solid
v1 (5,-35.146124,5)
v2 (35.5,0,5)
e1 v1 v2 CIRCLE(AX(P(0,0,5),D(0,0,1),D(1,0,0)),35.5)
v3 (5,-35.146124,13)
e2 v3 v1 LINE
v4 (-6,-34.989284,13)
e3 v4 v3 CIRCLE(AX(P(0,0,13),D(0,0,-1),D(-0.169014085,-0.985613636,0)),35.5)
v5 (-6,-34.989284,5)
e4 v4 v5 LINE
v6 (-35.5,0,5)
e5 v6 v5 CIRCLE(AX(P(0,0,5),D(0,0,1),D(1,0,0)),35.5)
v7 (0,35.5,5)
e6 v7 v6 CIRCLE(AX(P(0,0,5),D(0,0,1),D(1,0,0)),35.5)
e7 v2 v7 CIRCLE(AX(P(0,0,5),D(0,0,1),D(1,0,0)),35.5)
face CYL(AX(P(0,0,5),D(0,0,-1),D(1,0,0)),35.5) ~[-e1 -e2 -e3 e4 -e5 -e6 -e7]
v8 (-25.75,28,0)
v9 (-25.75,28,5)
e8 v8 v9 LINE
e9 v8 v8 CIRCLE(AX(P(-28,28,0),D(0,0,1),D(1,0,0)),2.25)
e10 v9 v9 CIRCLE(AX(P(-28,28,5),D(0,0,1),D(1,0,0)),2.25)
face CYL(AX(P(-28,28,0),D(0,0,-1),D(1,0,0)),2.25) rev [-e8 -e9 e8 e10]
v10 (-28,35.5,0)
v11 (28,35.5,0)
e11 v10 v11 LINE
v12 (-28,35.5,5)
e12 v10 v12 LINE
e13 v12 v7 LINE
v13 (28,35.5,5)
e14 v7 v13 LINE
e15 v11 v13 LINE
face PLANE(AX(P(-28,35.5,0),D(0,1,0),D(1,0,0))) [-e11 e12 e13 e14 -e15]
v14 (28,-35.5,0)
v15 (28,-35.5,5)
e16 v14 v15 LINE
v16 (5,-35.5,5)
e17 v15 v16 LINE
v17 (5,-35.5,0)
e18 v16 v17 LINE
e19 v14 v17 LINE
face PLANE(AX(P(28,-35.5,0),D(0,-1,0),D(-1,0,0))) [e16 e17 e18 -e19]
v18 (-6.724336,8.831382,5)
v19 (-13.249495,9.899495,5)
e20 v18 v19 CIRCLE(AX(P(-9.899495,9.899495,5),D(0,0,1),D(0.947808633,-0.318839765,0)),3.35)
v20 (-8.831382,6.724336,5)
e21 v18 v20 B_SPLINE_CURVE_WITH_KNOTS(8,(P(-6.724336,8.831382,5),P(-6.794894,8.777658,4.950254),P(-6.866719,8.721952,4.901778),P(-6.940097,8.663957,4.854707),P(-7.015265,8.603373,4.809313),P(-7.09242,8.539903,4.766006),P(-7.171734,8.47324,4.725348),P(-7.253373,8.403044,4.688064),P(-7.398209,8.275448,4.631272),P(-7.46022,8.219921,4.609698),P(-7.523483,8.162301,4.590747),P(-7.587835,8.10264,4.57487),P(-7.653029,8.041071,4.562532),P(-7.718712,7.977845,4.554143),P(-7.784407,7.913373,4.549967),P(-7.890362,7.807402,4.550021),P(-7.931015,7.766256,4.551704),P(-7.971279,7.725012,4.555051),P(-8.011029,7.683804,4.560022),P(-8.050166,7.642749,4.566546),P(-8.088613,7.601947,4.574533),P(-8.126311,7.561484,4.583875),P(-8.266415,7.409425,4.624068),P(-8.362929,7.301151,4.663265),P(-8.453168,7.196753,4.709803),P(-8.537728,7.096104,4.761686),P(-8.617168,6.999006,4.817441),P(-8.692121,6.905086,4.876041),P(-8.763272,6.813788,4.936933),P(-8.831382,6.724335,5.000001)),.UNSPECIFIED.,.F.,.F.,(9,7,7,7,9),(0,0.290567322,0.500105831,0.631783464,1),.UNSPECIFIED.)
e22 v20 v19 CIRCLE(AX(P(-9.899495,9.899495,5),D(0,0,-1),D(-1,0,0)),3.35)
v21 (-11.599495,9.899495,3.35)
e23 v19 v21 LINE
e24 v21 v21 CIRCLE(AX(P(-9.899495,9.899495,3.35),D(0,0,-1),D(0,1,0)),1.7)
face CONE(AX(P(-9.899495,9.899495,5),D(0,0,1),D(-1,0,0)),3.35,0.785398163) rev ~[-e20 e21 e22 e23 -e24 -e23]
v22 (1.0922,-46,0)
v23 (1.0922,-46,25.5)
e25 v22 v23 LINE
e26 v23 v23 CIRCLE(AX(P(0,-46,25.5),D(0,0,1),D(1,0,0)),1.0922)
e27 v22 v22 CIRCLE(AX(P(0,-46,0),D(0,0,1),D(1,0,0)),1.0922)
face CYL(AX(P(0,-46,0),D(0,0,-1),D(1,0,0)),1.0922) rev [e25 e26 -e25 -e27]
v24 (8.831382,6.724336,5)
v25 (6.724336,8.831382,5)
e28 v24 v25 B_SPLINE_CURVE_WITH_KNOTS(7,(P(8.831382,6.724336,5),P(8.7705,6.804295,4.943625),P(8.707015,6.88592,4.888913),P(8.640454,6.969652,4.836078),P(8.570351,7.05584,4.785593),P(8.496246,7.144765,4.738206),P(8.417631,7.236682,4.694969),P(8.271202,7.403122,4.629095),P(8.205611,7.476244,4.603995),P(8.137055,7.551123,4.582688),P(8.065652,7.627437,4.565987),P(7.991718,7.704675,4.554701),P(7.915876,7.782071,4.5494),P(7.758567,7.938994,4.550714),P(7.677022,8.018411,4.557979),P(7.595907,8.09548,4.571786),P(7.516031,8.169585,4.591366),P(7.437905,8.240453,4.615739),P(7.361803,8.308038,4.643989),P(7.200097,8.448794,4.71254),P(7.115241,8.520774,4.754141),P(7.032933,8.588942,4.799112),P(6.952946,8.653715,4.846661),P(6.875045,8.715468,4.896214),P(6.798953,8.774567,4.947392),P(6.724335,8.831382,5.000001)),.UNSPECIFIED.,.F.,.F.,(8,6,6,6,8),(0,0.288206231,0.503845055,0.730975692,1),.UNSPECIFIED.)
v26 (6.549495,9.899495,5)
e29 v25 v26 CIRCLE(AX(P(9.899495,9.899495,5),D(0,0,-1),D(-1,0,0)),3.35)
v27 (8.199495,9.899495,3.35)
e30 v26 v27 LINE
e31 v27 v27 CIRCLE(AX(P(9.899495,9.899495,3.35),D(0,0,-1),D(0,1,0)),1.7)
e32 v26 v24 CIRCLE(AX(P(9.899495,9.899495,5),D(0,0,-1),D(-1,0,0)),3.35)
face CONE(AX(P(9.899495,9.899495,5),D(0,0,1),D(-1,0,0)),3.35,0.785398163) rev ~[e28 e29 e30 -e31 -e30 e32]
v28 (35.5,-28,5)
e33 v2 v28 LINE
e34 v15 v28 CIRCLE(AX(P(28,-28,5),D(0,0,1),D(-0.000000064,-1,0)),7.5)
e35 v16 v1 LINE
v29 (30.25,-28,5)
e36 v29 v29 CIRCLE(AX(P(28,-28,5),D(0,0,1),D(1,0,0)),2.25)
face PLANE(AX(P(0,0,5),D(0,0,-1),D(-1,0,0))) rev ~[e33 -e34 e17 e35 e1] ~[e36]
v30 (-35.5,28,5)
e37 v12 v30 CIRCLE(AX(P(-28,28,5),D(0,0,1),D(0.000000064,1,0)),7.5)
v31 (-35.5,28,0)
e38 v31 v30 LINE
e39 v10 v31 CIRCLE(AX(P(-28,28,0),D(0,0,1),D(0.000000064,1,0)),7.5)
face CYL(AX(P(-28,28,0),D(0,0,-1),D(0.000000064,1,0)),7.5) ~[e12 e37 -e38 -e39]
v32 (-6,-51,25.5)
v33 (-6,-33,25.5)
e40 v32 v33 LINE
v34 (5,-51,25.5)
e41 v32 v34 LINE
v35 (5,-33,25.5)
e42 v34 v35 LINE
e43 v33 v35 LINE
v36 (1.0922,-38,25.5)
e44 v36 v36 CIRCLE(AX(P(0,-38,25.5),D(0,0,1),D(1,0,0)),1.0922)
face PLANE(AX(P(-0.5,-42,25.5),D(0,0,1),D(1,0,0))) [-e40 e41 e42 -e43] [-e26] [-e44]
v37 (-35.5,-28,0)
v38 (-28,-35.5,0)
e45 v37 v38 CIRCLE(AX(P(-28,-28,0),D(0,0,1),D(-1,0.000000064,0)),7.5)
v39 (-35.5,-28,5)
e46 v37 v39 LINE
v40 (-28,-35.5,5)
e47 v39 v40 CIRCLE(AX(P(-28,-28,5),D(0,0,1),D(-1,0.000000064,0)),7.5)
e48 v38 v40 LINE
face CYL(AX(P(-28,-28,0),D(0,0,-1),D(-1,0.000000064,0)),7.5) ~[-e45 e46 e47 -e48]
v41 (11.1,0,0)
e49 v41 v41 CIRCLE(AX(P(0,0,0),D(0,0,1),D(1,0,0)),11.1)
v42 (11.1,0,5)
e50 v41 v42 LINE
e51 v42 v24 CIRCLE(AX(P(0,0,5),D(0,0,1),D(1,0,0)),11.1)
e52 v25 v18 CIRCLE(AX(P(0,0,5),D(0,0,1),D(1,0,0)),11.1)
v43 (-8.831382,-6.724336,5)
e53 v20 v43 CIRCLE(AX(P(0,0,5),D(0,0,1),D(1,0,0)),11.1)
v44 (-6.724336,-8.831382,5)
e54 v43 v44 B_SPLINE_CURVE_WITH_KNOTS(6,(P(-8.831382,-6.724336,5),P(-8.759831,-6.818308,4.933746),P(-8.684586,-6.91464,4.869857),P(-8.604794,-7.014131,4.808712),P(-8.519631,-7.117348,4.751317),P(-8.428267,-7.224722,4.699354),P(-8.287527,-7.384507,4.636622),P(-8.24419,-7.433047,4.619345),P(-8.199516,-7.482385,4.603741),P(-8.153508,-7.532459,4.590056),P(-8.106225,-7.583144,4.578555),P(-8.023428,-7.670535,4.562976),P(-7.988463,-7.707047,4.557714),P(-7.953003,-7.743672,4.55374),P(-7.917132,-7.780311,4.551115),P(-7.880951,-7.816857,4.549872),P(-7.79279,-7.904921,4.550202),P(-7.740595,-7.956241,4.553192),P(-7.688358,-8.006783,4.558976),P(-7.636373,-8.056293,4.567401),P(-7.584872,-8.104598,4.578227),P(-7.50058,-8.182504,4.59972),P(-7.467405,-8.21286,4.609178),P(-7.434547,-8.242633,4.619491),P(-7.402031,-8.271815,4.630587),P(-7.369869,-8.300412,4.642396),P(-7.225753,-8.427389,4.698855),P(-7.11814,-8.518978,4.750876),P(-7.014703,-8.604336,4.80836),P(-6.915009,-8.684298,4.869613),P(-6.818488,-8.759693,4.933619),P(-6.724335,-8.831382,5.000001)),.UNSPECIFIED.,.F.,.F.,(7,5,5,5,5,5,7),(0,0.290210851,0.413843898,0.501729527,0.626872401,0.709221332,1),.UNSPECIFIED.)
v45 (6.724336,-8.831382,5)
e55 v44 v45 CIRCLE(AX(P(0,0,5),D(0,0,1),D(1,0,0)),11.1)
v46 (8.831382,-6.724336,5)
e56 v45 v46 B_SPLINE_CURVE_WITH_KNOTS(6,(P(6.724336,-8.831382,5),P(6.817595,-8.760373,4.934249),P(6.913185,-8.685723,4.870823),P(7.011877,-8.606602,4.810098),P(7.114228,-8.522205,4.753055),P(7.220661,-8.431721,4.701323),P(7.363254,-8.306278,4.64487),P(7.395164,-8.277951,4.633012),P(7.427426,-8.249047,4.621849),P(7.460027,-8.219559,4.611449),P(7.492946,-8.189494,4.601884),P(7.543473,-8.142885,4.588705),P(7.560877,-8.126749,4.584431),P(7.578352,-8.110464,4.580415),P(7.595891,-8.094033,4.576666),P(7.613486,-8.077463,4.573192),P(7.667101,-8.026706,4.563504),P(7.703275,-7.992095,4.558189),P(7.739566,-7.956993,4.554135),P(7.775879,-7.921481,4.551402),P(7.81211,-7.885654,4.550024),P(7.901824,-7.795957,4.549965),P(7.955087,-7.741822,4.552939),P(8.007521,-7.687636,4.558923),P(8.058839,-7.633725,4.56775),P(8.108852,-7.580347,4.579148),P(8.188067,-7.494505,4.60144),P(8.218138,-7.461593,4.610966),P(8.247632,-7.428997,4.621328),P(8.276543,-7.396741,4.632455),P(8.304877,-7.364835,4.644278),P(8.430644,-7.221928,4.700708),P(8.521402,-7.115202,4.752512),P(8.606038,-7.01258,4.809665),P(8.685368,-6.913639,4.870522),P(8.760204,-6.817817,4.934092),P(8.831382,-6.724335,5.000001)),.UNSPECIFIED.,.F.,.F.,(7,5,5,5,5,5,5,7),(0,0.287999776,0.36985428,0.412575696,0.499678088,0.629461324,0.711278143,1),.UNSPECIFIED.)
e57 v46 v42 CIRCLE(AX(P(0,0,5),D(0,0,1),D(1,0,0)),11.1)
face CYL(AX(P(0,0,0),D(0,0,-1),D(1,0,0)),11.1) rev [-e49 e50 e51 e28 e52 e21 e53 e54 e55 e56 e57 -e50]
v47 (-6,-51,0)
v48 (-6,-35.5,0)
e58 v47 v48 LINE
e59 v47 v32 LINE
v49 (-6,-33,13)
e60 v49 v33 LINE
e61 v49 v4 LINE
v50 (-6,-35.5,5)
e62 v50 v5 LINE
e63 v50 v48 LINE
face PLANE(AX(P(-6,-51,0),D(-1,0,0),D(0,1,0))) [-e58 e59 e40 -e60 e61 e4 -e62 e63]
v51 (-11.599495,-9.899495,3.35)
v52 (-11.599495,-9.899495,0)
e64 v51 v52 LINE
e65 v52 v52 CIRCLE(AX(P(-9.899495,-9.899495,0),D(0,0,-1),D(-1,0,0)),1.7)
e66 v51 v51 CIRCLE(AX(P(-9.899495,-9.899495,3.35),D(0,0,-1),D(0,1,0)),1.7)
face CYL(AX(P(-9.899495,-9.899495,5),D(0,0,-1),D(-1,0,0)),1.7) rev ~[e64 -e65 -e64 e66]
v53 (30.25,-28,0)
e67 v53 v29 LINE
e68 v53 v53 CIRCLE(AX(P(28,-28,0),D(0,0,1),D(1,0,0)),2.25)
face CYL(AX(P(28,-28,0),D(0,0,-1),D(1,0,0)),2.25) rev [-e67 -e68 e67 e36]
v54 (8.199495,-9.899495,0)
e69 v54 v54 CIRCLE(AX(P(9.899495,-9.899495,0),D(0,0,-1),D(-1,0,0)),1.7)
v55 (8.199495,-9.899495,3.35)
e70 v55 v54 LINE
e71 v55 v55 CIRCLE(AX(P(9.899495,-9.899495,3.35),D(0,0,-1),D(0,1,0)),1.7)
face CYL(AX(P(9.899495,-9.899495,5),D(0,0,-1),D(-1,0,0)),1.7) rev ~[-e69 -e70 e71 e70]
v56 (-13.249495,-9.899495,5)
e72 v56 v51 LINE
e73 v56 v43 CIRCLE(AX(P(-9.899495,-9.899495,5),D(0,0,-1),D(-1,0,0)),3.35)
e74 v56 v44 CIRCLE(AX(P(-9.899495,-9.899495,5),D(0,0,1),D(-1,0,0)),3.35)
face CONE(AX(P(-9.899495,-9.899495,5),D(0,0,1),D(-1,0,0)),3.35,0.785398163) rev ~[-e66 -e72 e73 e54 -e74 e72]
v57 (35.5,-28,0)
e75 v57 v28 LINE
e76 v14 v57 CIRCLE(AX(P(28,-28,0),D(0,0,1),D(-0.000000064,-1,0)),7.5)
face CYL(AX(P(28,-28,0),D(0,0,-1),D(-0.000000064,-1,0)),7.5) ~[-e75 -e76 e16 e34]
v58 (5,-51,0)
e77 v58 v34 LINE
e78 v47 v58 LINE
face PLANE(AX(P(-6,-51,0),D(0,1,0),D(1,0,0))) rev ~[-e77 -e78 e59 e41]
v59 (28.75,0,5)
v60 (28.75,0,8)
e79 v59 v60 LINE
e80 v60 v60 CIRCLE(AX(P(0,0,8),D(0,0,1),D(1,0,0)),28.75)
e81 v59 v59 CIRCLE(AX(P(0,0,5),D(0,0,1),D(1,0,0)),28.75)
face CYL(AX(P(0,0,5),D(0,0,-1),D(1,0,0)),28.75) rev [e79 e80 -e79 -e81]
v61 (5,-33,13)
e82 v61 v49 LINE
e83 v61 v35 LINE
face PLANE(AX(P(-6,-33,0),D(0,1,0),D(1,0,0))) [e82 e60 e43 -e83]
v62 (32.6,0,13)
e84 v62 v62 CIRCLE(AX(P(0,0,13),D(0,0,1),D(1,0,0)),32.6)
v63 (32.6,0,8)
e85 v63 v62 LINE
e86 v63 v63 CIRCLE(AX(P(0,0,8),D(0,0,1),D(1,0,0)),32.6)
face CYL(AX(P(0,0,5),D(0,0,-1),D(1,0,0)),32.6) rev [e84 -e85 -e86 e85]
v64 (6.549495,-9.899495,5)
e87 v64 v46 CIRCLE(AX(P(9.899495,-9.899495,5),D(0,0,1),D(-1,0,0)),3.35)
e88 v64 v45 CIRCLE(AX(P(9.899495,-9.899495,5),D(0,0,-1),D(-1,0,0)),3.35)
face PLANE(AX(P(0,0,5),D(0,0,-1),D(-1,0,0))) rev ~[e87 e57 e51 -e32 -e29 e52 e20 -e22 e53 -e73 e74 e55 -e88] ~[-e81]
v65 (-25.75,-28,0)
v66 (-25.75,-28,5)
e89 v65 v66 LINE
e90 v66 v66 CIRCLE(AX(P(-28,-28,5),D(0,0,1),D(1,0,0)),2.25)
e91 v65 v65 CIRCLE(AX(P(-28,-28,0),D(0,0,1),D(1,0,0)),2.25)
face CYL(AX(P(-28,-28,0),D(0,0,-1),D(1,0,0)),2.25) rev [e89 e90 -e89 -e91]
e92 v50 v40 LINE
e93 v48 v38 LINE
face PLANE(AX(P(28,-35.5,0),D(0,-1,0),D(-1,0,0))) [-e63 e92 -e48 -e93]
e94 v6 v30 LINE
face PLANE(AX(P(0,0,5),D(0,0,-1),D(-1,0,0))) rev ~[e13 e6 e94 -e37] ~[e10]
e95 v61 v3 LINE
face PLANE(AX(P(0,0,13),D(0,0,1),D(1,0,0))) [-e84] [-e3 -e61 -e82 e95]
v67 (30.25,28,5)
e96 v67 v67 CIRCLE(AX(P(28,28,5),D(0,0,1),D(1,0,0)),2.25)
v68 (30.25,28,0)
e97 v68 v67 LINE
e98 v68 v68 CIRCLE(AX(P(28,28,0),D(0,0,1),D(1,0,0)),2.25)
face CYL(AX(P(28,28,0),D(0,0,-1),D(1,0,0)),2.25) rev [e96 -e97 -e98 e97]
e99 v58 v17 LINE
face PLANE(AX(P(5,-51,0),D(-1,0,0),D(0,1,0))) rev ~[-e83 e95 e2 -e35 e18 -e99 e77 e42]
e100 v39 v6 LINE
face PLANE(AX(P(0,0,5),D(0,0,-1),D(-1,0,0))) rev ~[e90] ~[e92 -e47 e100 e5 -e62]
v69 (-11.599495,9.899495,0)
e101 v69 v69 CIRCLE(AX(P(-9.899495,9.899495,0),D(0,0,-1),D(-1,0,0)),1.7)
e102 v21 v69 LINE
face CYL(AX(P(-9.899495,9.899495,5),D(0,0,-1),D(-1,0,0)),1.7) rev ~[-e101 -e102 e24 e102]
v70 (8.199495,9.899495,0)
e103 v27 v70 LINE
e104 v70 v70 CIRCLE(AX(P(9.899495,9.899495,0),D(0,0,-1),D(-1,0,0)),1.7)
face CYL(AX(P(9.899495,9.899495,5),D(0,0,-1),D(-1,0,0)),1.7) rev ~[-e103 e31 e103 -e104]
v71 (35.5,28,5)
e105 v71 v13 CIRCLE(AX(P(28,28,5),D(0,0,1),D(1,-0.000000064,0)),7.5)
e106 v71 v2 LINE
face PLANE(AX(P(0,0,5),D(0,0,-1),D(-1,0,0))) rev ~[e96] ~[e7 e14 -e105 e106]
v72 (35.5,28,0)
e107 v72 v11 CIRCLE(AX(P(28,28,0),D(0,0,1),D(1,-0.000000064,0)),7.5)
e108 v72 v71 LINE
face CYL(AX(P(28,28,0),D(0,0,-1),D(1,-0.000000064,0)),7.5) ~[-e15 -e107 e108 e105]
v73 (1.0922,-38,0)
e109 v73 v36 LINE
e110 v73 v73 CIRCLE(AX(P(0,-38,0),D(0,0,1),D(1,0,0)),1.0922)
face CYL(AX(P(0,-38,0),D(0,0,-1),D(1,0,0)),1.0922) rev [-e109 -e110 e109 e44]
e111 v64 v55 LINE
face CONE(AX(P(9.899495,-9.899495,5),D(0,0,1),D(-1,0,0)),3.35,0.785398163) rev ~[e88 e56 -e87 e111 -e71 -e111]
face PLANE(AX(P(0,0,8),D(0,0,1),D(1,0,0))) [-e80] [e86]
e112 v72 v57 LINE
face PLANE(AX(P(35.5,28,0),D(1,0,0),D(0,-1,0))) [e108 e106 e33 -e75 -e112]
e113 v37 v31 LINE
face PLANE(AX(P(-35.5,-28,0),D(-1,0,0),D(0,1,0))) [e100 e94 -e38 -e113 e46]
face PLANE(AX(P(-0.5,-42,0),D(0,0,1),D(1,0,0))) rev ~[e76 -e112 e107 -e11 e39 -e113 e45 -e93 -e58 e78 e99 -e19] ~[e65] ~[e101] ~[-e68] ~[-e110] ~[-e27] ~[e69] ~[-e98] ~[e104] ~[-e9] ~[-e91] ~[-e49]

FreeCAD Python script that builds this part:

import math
import FreeCAD as App
import Part
import Sketcher
from FreeCAD import Vector
Q = App.Units.Quantity


def add_polygon(sketch, points):
    """Adds a closed chain of lines whose ends are joined by coincident constraints."""
    first, n = sketch.GeometryCount, len(points)
    for a, b in zip(points, points[1:] + points[:1]):
        sketch.addGeometry(Part.LineSegment(App.Vector(*a, 0), App.Vector(*b, 0)), False)
    for i in range(n):
        sketch.addConstraint(Sketcher.Constraint("Coincident", first + i, 2, first + (i + 1) % n, 1))

doc = App.newDocument("Part")
body = doc.addObject("PartDesign::Body", "Body")

sketch1 = doc.addObject("Sketcher::SketchObject", "Sketch")
body.addObject(sketch1)
sketch1.AttachmentSupport = (doc.XY_Plane, [""])
sketch1.MapMode = "FlatFace"
sketch1.addGeometry([
    Part.LineSegment(Vector(28, 35.5, 0), Vector(-28, 35.5, 0)),
    Part.ArcOfCircle(Part.Circle(Vector(-28, 28, 0), Vector(0, 0, 1), 7.5), math.radians(90), math.radians(180)),
    Part.LineSegment(Vector(-35.5, 28, 0), Vector(-35.5, -28, 0)),
    Part.ArcOfCircle(Part.Circle(Vector(-28, -28, 0), Vector(0, 0, 1), 7.5), math.radians(180), math.radians(270)),
    Part.LineSegment(Vector(-28, -35.5, 0), Vector(28, -35.5, 0)),
    Part.ArcOfCircle(Part.Circle(Vector(28, -28, 0), Vector(0, 0, 1), 7.5), math.radians(-90), math.radians(0)),
    Part.LineSegment(Vector(35.5, -28, 0), Vector(35.5, 28, 0)),
    Part.ArcOfCircle(Part.Circle(Vector(28, 28, 0), Vector(0, 0, 1), 7.5), math.radians(0), math.radians(90)),
    Part.Circle(Vector(28, -28, 0), Vector(0, 0, 1), 2.2),
    Part.Circle(Vector(9.9, -9.9, 0), Vector(0, 0, 1), 1.6),
    Part.Circle(Vector(-28, -28, 0), Vector(0, 0, 1), 2.2),
    Part.Circle(Vector(-9.9, -9.9, 0), Vector(0, 0, 1), 1.6),
    Part.Circle(Vector(9.9, 9.9, 0), Vector(0, 0, 1), 1.6),
    Part.Circle(Vector(28, 28, 0), Vector(0, 0, 1), 2.2),
    Part.Circle(Vector(0, 0, 0), Vector(0, 0, 1), 11.1),
    Part.Circle(Vector(-9.9, 9.9, 0), Vector(0, 0, 1), 1.6),
    Part.Circle(Vector(-28, 28, 0), Vector(0, 0, 1), 2.2),
], False)
sketch1.addConstraint([
    Sketcher.Constraint("Tangent", 0, 2, 1, 1),
    Sketcher.Constraint("Tangent", 1, 2, 2, 1),
    Sketcher.Constraint("Tangent", 2, 2, 3, 1),
    Sketcher.Constraint("Tangent", 3, 2, 4, 1),
    Sketcher.Constraint("Tangent", 4, 2, 5, 1),
    Sketcher.Constraint("Tangent", 5, 2, 6, 1),
    Sketcher.Constraint("Tangent", 6, 2, 7, 1),
    Sketcher.Constraint("Tangent", 7, 2, 0, 1),
    Sketcher.Constraint("Horizontal", 0),
    Sketcher.Constraint("Vertical", 2),
    Sketcher.Constraint("Horizontal", 4),
    Sketcher.Constraint("Vertical", 6),
    Sketcher.Constraint("Coincident", 14, 3, -1, 1),
    Sketcher.Constraint("Coincident", 8, 3, 5, 3),
    Sketcher.Constraint("Coincident", 10, 3, 3, 3),
    Sketcher.Constraint("Coincident", 13, 3, 7, 3),
    Sketcher.Constraint("Coincident", 16, 3, 1, 3),
    Sketcher.Constraint("Equal", 1, 3),
    Sketcher.Constraint("Equal", 3, 5),
    Sketcher.Constraint("Equal", 5, 7),
    Sketcher.Constraint("Equal", 8, 10),
    Sketcher.Constraint("Equal", 9, 11),
    Sketcher.Constraint("Equal", 11, 12),
    Sketcher.Constraint("Equal", 10, 13),
    Sketcher.Constraint("Equal", 12, 15),
    Sketcher.Constraint("Equal", 13, 16),
    Sketcher.Constraint("Symmetric", 1, 3, 5, 3, -1, 1),
    Sketcher.Constraint("Symmetric", 11, 3, 12, 3, -1, 1),
    Sketcher.Constraint("Symmetric", 9, 3, 15, 3, -1, 1),
    Sketcher.Constraint("Symmetric", 9, 3, 11, 3, -2),
    Sketcher.Constraint("Equal", 4, 2),
    Sketcher.Constraint("Diameter", 8, Q("4.5 mm")),
    Sketcher.Constraint("Diameter", 9, Q("3.3 mm")),
    Sketcher.Constraint("Diameter", 14, Q("22.2 mm")),
    Sketcher.Constraint("Radius", 1, Q("7.5 mm")),
    Sketcher.Constraint("DistanceX", 0, 2, 0, 1, Q("56 mm")),
    Sketcher.Constraint("DistanceX", 11, 3, 9, 3, Q("19.79899 mm")),
    Sketcher.Constraint("DistanceY", 9, 3, 12, 3, Q("19.79899 mm")),
])
pad1 = doc.addObject("PartDesign::Pad", "Pad")
body.addObject(pad1)
pad1.Profile = sketch1
pad1.Length = 5

sketch2 = doc.addObject("Sketcher::SketchObject", "Sketch001")
body.addObject(sketch2)
sketch2.AttachmentSupport = (doc.XY_Plane, [""])
sketch2.MapMode = "FlatFace"
sketch2.AttachmentOffset = App.Placement(Vector(0, 0, 5), App.Rotation())
sketch2.addGeometry([
    Part.Circle(Vector(0, 0, 0), Vector(0, 0, 1), 36),
    Part.Circle(Vector(0, 0, 0), Vector(0, 0, 1), 33),
], False)
sketch2.addConstraint([
    Sketcher.Constraint("Coincident", 0, 3, -1, 1),
    Sketcher.Constraint("Coincident", 1, 3, -1, 1),
    Sketcher.Constraint("Diameter", 0, Q("71 mm")),
    Sketcher.Constraint("Diameter", 1, Q("65.2 mm")),
])
pad2 = doc.addObject("PartDesign::Pad", "Pad001")
body.addObject(pad2)
pad2.Profile = sketch2
pad2.Length = 8

sketch3 = doc.addObject("Sketcher::SketchObject", "Sketch002")
body.addObject(sketch3)
sketch3.AttachmentSupport = (doc.XY_Plane, [""])
sketch3.MapMode = "FlatFace"
sketch3.AttachmentOffset = App.Placement(Vector(0, 0, 5), App.Rotation())
sketch3.addGeometry([
    Part.Circle(Vector(0, 0, 0), Vector(0, 0, 1), 33),
    Part.Circle(Vector(0, 0, 0), Vector(0, 0, 1), 29),
], False)
sketch3.addConstraint([
    Sketcher.Constraint("Coincident", 0, 3, -1, 1),
    Sketcher.Constraint("Coincident", 1, 3, -1, 1),
    Sketcher.Constraint("Diameter", 0, Q("65.2 mm")),
    Sketcher.Constraint("Diameter", 1, Q("57.5 mm")),
])
pad3 = doc.addObject("PartDesign::Pad", "Pad002")
body.addObject(pad3)
pad3.Profile = sketch3
pad3.Length = 3

sketch4 = doc.addObject("Sketcher::SketchObject", "Sketch003")
body.addObject(sketch4)
sketch4.AttachmentSupport = (doc.XY_Plane, [""])
sketch4.MapMode = "FlatFace"
add_polygon(sketch4, [(-6, -33), (-6, -51), (5, -51), (5, -33)])
sketch4.addGeometry(Part.Circle(Vector(0, -46, 0), Vector(0, 0, 1), 1.1), False)
sketch4.addGeometry(Part.Circle(Vector(0, -38, 0), Vector(0, 0, 1), 1.1), False)
sketch4.addConstraint([
    Sketcher.Constraint("Vertical", 0),
    Sketcher.Constraint("Horizontal", 1),
    Sketcher.Constraint("Vertical", 2),
    Sketcher.Constraint("Horizontal", 3),
    Sketcher.Constraint("Equal", 4, 5),
    Sketcher.Constraint("PointOnObject", 4, 3, -2),
    Sketcher.Constraint("PointOnObject", 5, 3, -2),
    Sketcher.Constraint("DistanceX", 1, 1, 1, 2, Q("11 mm")),
    Sketcher.Constraint("DistanceY", 0, 2, 0, 1, Q("18 mm")),
    Sketcher.Constraint("DistanceY", 4, 3, -1, 1, Q("46 mm")),
    Sketcher.Constraint("DistanceY", 5, 3, -1, 1, Q("38 mm")),
    Sketcher.Constraint("DistanceX", 0, 2, -1, 1, Q("6 mm")),
    Sketcher.Constraint("DistanceY", 0, 2, -1, 1, Q("51 mm")),
    Sketcher.Constraint("Diameter", 4, Q("2.1844 mm")),
])
pad4 = doc.addObject("PartDesign::Pad", "Pad003")
body.addObject(pad4)
pad4.Profile = sketch4
pad4.Length = 25.5

sketch5 = doc.addObject("Sketcher::SketchObject", "Sketch004")
body.addObject(sketch5)
sketch5.AttachmentSupport = (doc.XY_Plane, [""])
sketch5.MapMode = "FlatFace"
sketch5.AttachmentOffset = App.Placement(Vector(0, 0, 5), App.Rotation())
sketch5.addGeometry([
    Part.Circle(Vector(-9.9, 9.9, 0), Vector(0, 0, 1), 1.7),
    Part.Circle(Vector(9.9, 9.9, 0), Vector(0, 0, 1), 1.7),
    Part.Circle(Vector(9.9, -9.9, 0), Vector(0, 0, 1), 1.7),
    Part.Circle(Vector(-9.9, -9.9, 0), Vector(0, 0, 1), 1.7),
], False)
sketch5.addConstraint([
    Sketcher.Constraint("Equal", 0, 1),
    Sketcher.Constraint("Equal", 1, 2),
    Sketcher.Constraint("Equal", 2, 3),
    Sketcher.Constraint("Symmetric", 0, 3, 2, 3, -1, 1),
    Sketcher.Constraint("Symmetric", 1, 3, 3, 3, -1, 1),
    Sketcher.Constraint("Symmetric", 0, 3, 1, 3, -2),
    Sketcher.Constraint("Diameter", 0, Q("3.4 mm")),
    Sketcher.Constraint("DistanceX", 0, 3, 1, 3, Q("19.79899 mm")),
    Sketcher.Constraint("DistanceY", 2, 3, 1, 3, Q("19.79899 mm")),
])
doc.recompute()
hole = doc.addObject("PartDesign::Hole", "Hole")
body.addObject(hole)
hole.Profile = sketch5
hole.ThreadType = "None"
hole.Diameter = 3.4
hole.DepthType = "ThroughAll"
hole.HoleCutType = "Countersink"
hole.HoleCutDiameter = 6.7
hole.HoleCutCountersinkAngle = 90

doc.recompute()
